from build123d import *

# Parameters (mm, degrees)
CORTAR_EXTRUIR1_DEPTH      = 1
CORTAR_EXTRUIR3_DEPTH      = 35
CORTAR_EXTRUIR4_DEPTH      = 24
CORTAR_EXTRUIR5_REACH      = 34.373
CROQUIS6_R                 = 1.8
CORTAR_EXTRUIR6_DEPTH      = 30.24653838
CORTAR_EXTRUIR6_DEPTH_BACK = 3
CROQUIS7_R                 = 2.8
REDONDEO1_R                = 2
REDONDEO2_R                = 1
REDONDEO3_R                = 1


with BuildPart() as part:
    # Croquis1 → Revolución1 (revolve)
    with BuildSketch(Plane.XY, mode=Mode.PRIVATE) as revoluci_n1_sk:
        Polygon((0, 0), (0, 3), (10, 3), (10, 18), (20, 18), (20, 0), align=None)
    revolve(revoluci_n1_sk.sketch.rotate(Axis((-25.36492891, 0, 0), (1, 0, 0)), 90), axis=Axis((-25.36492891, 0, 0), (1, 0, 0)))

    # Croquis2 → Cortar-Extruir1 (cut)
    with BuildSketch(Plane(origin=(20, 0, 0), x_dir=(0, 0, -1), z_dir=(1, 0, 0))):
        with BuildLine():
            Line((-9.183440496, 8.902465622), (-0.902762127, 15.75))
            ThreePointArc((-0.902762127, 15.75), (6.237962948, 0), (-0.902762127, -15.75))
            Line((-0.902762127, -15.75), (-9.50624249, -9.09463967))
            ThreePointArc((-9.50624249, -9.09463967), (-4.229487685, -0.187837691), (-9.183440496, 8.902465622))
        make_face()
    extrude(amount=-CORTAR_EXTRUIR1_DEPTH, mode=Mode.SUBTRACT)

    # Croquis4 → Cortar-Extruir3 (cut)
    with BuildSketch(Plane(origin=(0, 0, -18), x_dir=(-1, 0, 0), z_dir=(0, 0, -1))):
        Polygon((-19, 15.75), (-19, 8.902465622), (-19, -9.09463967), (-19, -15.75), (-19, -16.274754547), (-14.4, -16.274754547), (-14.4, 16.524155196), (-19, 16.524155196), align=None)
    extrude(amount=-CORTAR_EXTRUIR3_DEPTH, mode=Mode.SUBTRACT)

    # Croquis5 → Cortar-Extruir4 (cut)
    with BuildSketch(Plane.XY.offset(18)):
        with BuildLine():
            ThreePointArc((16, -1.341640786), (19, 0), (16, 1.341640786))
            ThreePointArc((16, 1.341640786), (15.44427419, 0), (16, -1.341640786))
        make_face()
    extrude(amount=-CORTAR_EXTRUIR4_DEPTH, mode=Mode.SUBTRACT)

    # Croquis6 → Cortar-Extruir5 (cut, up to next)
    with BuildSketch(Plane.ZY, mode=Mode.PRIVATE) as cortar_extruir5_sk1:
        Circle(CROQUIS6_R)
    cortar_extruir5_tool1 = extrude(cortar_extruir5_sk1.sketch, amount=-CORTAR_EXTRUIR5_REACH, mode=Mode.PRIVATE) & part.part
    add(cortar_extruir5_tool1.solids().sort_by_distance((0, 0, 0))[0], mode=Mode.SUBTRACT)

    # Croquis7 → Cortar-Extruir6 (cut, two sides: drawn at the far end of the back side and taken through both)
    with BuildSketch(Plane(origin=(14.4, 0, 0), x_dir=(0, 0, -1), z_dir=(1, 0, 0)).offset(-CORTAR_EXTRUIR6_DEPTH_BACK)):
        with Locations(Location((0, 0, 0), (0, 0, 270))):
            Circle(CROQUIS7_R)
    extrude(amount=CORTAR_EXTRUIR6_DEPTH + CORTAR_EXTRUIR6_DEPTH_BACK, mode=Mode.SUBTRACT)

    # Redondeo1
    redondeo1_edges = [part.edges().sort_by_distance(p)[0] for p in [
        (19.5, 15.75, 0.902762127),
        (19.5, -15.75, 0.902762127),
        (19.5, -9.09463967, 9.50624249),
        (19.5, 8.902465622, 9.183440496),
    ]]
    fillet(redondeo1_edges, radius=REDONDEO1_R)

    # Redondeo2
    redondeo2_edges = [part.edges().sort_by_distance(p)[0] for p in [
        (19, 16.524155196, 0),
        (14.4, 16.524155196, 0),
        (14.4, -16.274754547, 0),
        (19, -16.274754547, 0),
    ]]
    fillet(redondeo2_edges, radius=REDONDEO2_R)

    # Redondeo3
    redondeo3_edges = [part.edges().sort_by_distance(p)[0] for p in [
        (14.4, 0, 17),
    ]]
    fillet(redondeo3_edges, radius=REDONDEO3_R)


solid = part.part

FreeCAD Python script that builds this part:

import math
import FreeCAD as App
import Part
import Sketcher
from FreeCAD import Vector


def edges_at(feature, points):
    """Names of the edges that pass closest to the given points."""
    edges = feature.Shape.Edges
    near = lambda p: min(range(len(edges)), key=lambda i: edges[i].distToShape(Part.Vertex(*p))[0])
    return sorted({f"Edge{near(p) + 1}" for p in points})


def add_polygon(sketch, points):
    """Adds a closed chain of lines whose ends are joined by coincident constraints."""
    first, n = sketch.GeometryCount, len(points)
    for a, b in zip(points, points[1:] + points[:1]):
        sketch.addGeometry(Part.LineSegment(App.Vector(*a, 0), App.Vector(*b, 0)), False)
    for i in range(n):
        sketch.addConstraint(Sketcher.Constraint("Coincident", first + i, 2, first + (i + 1) % n, 1))

doc = App.newDocument("Part")
body = doc.addObject("PartDesign::Body", "Body")

# Sketch on XY plane
sketch1 = body.newObject("Sketcher::SketchObject", "Sketch")
sketch1.AttachmentSupport = (doc.getObject("XY_Plane"), [""])
sketch1.MapMode = "FlatFace"
add_polygon(sketch1, [(0, 3), (0, 0), (20, 0), (20, 18), (10, 18), (10, 3)])  # lines 0-5
sketch1.addConstraint([
    Sketcher.Constraint("Vertical", 0),
    Sketcher.Constraint("Horizontal", 1),
    Sketcher.Constraint("Vertical", 2),
    Sketcher.Constraint("Horizontal", 3),
    Sketcher.Constraint("Vertical", 4),
    Sketcher.Constraint("Horizontal", 5),
    Sketcher.Constraint("Coincident", 0, 2, -1, 1),
    Sketcher.Constraint("Equal", 3, 5),
    Sketcher.Constraint("DistanceX", 1, 1, 1, 2, 20.0),
    Sketcher.Constraint("DistanceY", 0, 2, 0, 1, 3.0),
    Sketcher.Constraint("DistanceY", 2, 1, 2, 2, 18.0),
])
revolution = body.newObject("PartDesign::Revolution", "Revolution")
revolution.Profile = sketch1
revolution.ReferenceAxis = (sketch1, ["H_Axis"])
revolution.Angle = 360

# Sketch on YZ plane
sketch2 = body.newObject("Sketcher::SketchObject", "Sketch001")
sketch2.AttachmentSupport = (doc.getObject("YZ_Plane"), [""])
sketch2.MapMode = "FlatFace"
sketch2.AttachmentOffset = App.Placement(Vector(0, 0, 20), App.Rotation())
sketch2.addGeometry([
    Part.LineSegment(Vector(16, 1, 0), Vector(9, 9, 0)),
    Part.ArcOfCircle(Part.Circle(Vector(0, 15, 0), Vector(0, 0, 1), 10), math.radians(-150), math.radians(-32)),
    Part.LineSegment(Vector(-9, 10, 0), Vector(-16, 1, 0)),
    Part.ArcOfCircle(Part.Circle(Vector(0, 15, 0), Vector(0, 0, 1), 21), math.radians(-139), math.radians(-41)),
], False)
sketch2.addConstraint([
    Sketcher.Constraint("Coincident", 0, 2, 1, 2),
    Sketcher.Constraint("Coincident", 1, 1, 2, 1),
    Sketcher.Constraint("Coincident", 2, 2, 3, 1),
    Sketcher.Constraint("Coincident", 3, 2, 0, 1),
    Sketcher.Constraint("Coincident", 3, 3, 1, 3),
    Sketcher.Constraint("Symmetric", 2, 2, 3, 2, -2),
    Sketcher.Constraint("DistanceX", 2, 2, 3, 2, 31.5),
    Sketcher.Constraint("Radius", 1, 10.474156),
    Sketcher.Constraint("Radius", 3, 20.939922),
    Sketcher.Constraint("DistanceY", 0, 2, 1, 1, 0.322802),
    Sketcher.Constraint("Distance", 2, 10.87721),
    Sketcher.Constraint("DistanceY", -1, 1, 1, 3, 14.701959),
])
pocket1 = body.newObject("PartDesign::Pocket", "Pocket")
pocket1.Profile = sketch2
pocket1.Length = 1

# Sketch on XY plane
sketch3 = body.newObject("Sketcher::SketchObject", "Sketch002")
sketch3.AttachmentSupport = (doc.getObject("XY_Plane"), [""])
sketch3.MapMode = "FlatFace"
sketch3.AttachmentOffset = App.Placement(Vector(0, 0, -18), App.Rotation())
add_polygon(sketch3, [(19, -16.3), (14.4, -16.3), (14.4, 16.5), (19, 16.5)])  # lines 0-3
sketch3.addConstraint([
    Sketcher.Constraint("Horizontal", 0),
    Sketcher.Constraint("Vertical", 1),
    Sketcher.Constraint("Horizontal", 2),
    Sketcher.Constraint("Vertical", 3),
    Sketcher.Constraint("DistanceX", 0, 2, 0, 1, 4.6),
    Sketcher.Constraint("DistanceX", -1, 1, 2, 2, 19.0),
    Sketcher.Constraint("DistanceY", 1, 1, 1, 2, 32.79891),
    Sketcher.Constraint("DistanceY", 0, 2, -1, 1, 16.274755),
])
pocket2 = body.newObject("PartDesign::Pocket", "Pocket001")
pocket2.Profile = sketch3
pocket2.Length = 35
pocket2.Reversed = True

# Sketch on XY plane
sketch4 = body.newObject("Sketcher::SketchObject", "Sketch003")
sketch4.AttachmentSupport = (doc.getObject("XY_Plane"), [""])
sketch4.MapMode = "FlatFace"
sketch4.AttachmentOffset = App.Placement(Vector(0, 0, 18), App.Rotation())
sketch4.addGeometry([
    Part.ArcOfCircle(Part.Circle(Vector(17.2, 0, 0), Vector(0, 0, 1), 1.8), math.radians(-132), math.radians(132)),
    Part.ArcOfCircle(Part.Circle(Vector(17.3, 0, 0), Vector(0, 0, 1), 1.9), math.radians(135), math.radians(225)),
], False)
sketch4.addConstraint([
    Sketcher.Constraint("Coincident", 0, 1, 1, 2),
    Sketcher.Constraint("Coincident", 1, 1, 0, 2),
    Sketcher.Constraint("Symmetric", 0, 1, 1, 1, -1),
    Sketcher.Constraint("Radius", 0, 1.8),
    Sketcher.Constraint("DistanceX", -1, 1, 0, 1, 16.0),
    Sketcher.Constraint("DistanceX", -1, 1, 0, 3, 17.2),
    Sketcher.Constraint("Radius", 1, 1.897367),
])
pocket3 = body.newObject("PartDesign::Pocket", "Pocket002")
pocket3.Profile = sketch4
pocket3.Length = 24

# Sketch on YZ plane
sketch5 = body.newObject("Sketcher::SketchObject", "Sketch004")
sketch5.AttachmentSupport = (doc.getObject("YZ_Plane"), [""])
sketch5.MapMode = "FlatFace"
sketch5.addGeometry(Part.Circle(Vector(0, 0, 0), Vector(0, 0, 1), 1.8), False)
sketch5.addConstraint([
    Sketcher.Constraint("Coincident", 0, 3, -1, 1),
    Sketcher.Constraint("Diameter", 0, 3.6),
])
pocket4 = body.newObject("PartDesign::Pocket", "Pocket003")
pocket4.Profile = sketch5
pocket4.Type = "UpToFirst"
pocket4.Reversed = True

# Sketch on YZ plane
sketch6 = body.newObject("Sketcher::SketchObject", "Sketch005")
sketch6.AttachmentSupport = (doc.getObject("YZ_Plane"), [""])
sketch6.MapMode = "FlatFace"
sketch6.AttachmentOffset = App.Placement(Vector(0, 0, 14.4), App.Rotation())
sketch6.addGeometry(Part.Circle(Vector(0, 0, 0), Vector(0, 0, 1), 2.8), False)
sketch6.addConstraint([
    Sketcher.Constraint("Coincident", 0, 3, -1, 1),
    Sketcher.Constraint("Diameter", 0, 5.6),
])
pocket5 = body.newObject("PartDesign::Pocket", "Pocket004")
pocket5.Profile = sketch6
pocket5.Type = "TwoLengths"
pocket5.Length = 30.246538
pocket5.Length2 = 3
pocket5.Reversed = True
doc.recompute()

fillet = body.newObject("PartDesign::Fillet", "Fillet")
fillet.Base = (pocket5, edges_at(pocket5, [
    (19.5, 15.75, 0.903),
    (19.5, -15.75, 0.903),
    (19.5, -9.095, 9.506),
    (19.5, 8.902, 9.183),
]))
fillet.Radius = 2
doc.recompute()

fillet2 = body.newObject("PartDesign::Fillet", "Fillet001")
fillet2.Base = (fillet, edges_at(fillet, [
    (19, 16.524, 0),
    (14.4, 16.524, 0),
    (14.4, -16.275, 0),
    (19, -16.275, 0),
]))
fillet2.Radius = 1
doc.recompute()

fillet3 = body.newObject("PartDesign::Fillet", "Fillet002")
fillet3.Base = (fillet2, edges_at(fillet2, [(14.4, 0, 17)]))
fillet3.Radius = 1

doc.recompute()
